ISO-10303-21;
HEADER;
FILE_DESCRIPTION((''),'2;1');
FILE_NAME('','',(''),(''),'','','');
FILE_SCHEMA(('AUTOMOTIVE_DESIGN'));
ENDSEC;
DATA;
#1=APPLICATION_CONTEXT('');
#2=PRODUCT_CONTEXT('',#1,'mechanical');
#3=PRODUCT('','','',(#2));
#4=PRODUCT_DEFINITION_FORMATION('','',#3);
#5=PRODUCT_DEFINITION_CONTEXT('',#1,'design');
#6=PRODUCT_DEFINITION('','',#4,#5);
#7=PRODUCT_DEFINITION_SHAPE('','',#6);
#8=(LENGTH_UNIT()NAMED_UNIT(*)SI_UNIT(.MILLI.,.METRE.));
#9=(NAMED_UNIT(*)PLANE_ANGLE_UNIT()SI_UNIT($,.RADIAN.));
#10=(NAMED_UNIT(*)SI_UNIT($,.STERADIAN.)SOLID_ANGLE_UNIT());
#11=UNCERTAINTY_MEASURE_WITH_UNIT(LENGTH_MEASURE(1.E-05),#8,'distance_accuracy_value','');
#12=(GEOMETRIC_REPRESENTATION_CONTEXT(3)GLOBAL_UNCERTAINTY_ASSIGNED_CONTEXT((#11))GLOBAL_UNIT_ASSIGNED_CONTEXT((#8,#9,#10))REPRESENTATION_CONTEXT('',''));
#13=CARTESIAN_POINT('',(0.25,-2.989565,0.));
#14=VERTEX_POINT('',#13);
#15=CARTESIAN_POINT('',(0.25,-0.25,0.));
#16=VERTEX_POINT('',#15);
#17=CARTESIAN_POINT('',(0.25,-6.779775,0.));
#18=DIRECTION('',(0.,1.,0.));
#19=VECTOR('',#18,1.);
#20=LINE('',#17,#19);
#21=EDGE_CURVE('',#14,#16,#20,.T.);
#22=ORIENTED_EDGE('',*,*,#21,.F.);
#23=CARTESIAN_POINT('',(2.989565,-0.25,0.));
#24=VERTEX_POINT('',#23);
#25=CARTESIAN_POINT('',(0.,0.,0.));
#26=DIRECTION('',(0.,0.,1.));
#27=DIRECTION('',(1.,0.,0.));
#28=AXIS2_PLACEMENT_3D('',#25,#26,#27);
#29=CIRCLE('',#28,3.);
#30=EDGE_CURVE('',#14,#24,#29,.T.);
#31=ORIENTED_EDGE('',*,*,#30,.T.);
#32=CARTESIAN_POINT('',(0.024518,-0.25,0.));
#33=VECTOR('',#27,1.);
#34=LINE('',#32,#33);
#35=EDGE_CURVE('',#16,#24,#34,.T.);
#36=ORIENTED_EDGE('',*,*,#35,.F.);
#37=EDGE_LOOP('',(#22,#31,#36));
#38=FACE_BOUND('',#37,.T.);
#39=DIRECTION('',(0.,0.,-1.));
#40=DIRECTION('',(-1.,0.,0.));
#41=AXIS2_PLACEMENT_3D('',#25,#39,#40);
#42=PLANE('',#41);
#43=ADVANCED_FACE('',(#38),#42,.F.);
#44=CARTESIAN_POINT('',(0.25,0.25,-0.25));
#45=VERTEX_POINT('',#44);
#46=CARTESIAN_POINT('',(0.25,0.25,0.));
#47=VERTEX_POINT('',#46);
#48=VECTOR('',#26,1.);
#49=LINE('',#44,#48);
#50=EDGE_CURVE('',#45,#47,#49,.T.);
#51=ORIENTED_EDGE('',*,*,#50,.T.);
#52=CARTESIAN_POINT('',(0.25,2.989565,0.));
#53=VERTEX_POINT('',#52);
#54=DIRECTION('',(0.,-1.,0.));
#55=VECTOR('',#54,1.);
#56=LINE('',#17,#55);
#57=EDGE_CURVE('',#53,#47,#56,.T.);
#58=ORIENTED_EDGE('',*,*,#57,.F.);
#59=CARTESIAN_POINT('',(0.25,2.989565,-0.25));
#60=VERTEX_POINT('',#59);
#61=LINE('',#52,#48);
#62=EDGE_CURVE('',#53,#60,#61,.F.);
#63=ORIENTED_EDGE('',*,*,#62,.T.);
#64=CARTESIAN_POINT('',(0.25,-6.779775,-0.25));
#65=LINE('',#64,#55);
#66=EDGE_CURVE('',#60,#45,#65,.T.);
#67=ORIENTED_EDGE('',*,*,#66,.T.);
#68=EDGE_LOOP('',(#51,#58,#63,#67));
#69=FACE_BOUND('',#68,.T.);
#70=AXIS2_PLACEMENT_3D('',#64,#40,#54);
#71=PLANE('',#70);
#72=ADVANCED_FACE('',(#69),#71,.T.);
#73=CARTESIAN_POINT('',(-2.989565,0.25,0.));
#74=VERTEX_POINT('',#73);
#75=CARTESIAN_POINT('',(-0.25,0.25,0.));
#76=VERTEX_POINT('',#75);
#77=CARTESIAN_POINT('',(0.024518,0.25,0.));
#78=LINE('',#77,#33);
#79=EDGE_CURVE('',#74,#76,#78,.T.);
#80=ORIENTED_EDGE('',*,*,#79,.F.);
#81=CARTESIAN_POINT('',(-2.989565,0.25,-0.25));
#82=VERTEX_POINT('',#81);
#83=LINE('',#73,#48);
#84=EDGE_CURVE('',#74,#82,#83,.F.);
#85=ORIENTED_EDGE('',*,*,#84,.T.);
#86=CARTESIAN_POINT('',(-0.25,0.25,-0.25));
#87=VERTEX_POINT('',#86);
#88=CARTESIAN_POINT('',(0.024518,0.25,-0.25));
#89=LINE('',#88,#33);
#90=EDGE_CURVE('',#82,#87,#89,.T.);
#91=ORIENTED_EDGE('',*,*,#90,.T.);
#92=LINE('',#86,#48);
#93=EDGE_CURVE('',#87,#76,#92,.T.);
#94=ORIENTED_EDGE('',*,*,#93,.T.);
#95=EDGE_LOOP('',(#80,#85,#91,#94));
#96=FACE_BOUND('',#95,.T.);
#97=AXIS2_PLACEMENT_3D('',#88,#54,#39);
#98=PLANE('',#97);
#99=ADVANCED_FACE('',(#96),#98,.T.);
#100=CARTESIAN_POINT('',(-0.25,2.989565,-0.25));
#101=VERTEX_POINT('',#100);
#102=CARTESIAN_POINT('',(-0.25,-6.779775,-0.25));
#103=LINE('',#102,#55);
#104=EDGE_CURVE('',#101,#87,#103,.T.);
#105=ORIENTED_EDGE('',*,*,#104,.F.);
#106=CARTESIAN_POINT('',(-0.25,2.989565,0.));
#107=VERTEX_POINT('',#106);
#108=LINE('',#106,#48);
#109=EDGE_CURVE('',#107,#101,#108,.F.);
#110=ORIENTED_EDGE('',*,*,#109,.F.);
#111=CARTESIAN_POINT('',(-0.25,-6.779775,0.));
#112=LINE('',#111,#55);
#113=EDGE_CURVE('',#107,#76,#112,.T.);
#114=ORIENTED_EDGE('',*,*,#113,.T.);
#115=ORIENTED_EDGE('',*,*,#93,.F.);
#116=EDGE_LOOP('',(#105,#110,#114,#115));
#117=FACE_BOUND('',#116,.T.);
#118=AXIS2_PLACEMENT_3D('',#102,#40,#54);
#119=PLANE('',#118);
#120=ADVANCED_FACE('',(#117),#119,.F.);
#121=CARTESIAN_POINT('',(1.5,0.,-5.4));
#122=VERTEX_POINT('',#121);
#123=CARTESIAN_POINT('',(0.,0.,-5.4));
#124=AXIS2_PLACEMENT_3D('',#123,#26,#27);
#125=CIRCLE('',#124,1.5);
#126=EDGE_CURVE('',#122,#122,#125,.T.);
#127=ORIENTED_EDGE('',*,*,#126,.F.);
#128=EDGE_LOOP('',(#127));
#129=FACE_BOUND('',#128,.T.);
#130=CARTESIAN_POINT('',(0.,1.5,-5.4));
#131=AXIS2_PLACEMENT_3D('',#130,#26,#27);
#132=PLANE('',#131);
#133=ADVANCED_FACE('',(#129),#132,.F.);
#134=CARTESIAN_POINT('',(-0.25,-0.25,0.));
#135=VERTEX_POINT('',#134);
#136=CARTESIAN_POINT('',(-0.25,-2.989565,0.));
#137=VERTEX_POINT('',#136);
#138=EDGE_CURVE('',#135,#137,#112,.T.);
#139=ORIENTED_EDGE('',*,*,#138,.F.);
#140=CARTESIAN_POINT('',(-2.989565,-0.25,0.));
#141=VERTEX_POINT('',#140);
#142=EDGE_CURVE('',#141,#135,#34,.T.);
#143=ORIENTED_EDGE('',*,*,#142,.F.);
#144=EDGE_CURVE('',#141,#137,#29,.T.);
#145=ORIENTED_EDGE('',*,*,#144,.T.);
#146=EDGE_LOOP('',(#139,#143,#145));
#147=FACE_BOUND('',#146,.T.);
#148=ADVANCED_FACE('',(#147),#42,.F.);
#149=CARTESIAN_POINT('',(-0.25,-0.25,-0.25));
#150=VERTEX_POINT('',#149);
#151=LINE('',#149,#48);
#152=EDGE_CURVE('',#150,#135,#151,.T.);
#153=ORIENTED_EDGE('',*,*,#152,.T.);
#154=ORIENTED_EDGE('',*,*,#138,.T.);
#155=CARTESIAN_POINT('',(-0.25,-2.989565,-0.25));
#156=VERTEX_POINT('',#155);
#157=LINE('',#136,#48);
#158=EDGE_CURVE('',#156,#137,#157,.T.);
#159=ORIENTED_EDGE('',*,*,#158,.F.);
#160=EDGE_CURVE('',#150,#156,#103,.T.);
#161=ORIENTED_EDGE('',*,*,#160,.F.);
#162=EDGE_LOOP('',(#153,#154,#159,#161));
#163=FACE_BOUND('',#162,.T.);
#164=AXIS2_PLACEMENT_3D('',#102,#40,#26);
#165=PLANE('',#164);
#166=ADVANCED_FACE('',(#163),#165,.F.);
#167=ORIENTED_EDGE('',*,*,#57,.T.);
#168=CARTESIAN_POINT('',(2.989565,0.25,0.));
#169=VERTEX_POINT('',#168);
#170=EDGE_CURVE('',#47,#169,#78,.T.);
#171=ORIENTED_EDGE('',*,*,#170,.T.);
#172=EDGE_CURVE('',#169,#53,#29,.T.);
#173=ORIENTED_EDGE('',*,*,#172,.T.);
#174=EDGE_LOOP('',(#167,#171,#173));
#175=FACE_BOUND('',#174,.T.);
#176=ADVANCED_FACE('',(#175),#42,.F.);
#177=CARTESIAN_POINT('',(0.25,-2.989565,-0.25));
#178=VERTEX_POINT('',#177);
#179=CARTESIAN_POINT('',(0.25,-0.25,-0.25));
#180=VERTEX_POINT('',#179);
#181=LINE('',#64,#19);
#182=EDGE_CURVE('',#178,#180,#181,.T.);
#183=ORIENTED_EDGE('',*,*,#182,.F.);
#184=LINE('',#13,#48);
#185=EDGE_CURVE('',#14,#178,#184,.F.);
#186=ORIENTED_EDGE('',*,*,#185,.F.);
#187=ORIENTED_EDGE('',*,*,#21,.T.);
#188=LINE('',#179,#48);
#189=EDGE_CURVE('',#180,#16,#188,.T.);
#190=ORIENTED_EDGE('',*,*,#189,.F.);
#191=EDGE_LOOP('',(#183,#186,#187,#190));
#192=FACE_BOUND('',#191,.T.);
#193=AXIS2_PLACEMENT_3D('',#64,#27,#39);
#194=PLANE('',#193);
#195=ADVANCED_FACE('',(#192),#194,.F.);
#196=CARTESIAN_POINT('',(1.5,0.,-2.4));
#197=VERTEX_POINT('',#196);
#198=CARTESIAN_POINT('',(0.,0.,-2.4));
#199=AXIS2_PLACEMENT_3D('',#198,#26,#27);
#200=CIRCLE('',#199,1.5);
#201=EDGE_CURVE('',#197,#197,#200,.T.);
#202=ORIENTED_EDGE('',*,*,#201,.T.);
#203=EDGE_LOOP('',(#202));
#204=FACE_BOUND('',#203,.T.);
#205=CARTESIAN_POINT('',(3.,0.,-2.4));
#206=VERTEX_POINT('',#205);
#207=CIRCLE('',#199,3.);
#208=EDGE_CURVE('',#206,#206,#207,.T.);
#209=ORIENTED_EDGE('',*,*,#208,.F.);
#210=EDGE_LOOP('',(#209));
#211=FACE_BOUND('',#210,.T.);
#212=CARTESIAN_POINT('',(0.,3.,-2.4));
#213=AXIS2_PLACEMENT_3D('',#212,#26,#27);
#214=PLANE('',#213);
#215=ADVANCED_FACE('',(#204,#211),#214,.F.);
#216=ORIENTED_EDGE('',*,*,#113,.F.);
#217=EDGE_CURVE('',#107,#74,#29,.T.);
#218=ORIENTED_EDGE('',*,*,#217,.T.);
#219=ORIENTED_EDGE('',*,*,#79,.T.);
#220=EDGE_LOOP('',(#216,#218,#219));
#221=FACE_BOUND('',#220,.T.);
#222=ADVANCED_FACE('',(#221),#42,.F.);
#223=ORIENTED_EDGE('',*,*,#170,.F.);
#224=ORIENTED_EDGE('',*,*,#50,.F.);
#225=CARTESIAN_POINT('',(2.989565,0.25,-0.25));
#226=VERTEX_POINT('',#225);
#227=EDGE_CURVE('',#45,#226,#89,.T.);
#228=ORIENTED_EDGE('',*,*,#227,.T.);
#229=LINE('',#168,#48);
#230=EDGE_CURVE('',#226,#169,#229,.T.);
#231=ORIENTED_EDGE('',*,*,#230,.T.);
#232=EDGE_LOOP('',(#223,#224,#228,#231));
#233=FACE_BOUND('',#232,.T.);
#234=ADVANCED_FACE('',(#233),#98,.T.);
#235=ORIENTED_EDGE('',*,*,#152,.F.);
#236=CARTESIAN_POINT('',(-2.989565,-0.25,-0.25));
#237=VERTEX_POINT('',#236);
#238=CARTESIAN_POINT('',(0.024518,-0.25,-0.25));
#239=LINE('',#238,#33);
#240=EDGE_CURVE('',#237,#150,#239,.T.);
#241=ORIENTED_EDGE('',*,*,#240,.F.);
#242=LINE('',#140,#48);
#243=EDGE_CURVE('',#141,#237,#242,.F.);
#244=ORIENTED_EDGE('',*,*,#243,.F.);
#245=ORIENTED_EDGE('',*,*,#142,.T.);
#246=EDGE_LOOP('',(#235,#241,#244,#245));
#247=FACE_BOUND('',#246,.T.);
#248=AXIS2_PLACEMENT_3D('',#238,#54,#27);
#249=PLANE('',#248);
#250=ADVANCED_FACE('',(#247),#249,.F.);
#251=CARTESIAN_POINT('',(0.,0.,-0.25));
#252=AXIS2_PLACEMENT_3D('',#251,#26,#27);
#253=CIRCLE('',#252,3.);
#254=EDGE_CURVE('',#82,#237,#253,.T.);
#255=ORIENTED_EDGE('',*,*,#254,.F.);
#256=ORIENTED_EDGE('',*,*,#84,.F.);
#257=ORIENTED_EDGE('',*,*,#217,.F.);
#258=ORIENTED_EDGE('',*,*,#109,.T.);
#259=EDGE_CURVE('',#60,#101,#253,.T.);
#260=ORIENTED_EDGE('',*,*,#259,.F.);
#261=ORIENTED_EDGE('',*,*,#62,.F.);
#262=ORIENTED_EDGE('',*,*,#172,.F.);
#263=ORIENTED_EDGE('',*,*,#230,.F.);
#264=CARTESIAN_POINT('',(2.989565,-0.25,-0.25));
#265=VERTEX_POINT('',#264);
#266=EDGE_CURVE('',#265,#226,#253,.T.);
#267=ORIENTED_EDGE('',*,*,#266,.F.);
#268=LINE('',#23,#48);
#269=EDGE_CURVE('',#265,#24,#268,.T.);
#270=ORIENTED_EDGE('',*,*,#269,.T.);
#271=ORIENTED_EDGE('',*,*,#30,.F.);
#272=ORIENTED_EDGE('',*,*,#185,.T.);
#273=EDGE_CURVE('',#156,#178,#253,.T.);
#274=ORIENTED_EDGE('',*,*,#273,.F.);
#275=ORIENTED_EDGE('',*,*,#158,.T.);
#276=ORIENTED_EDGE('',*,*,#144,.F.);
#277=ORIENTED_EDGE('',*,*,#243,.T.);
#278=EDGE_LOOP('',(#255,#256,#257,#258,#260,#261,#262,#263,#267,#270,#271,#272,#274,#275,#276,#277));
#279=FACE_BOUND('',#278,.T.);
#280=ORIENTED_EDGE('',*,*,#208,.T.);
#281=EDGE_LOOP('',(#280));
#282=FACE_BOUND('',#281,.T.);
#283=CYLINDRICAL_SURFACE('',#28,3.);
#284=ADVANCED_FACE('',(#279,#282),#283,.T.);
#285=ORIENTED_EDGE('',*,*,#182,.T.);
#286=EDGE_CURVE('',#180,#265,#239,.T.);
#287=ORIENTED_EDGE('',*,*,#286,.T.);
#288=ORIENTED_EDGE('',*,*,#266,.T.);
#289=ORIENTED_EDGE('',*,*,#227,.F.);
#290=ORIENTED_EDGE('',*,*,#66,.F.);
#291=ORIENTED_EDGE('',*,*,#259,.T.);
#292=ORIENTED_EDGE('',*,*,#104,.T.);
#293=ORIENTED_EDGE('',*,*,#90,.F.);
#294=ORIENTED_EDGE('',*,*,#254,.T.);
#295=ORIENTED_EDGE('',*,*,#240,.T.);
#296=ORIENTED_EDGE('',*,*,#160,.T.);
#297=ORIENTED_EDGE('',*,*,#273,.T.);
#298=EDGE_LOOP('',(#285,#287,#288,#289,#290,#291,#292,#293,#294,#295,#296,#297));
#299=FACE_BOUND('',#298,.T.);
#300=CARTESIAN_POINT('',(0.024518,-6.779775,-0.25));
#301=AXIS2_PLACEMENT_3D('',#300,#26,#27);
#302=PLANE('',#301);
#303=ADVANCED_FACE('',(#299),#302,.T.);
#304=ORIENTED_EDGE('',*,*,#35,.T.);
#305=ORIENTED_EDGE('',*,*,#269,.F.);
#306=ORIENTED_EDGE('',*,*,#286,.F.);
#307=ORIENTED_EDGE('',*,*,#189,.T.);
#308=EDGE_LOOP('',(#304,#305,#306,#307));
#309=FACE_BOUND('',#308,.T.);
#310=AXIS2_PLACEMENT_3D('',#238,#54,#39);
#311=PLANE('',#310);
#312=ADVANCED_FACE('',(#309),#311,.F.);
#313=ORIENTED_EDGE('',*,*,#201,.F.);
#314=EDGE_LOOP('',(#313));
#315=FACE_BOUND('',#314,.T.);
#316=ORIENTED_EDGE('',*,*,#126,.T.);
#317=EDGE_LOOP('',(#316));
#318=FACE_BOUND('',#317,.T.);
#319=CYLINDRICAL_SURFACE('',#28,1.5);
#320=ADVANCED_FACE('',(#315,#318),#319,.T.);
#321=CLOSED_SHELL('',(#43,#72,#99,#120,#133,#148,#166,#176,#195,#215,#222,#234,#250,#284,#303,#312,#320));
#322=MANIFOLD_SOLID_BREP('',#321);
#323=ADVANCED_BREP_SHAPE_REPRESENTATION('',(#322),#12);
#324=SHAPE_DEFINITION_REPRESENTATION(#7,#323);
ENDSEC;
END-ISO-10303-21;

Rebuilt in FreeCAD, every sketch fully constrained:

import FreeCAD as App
import Part
import Sketcher
Q = App.Units.Quantity


def add_polygon(sketch, points):
    """Adds a closed chain of lines whose ends are joined by coincident constraints."""
    first, n = sketch.GeometryCount, len(points)
    for a, b in zip(points, points[1:] + points[:1]):
        sketch.addGeometry(Part.LineSegment(App.Vector(*a, 0), App.Vector(*b, 0)), False)
    for i in range(n):
        sketch.addConstraint(Sketcher.Constraint("Coincident", first + i, 2, first + (i + 1) % n, 1))

doc = App.newDocument("Part")
body = doc.addObject("PartDesign::Body", "Body")

# Sketch on YZ plane
sketch1 = doc.addObject("Sketcher::SketchObject", "Sketch")
body.addObject(sketch1)
sketch1.AttachmentSupport = (doc.YZ_Plane, [""])
sketch1.MapMode = "FlatFace"
add_polygon(sketch1, [(3, 0), (0, 0), (0, -5.4), (1.5, -5.4), (1.5, -2.4), (3, -2.4)])  # lines 0-5
sketch1.addConstraint(Sketcher.Constraint("Horizontal", 0))
sketch1.addConstraint(Sketcher.Constraint("Vertical", 1))
sketch1.addConstraint(Sketcher.Constraint("Horizontal", 2))
sketch1.addConstraint(Sketcher.Constraint("Vertical", 3))
sketch1.addConstraint(Sketcher.Constraint("Horizontal", 4))
sketch1.addConstraint(Sketcher.Constraint("Vertical", 5))
sketch1.addConstraint(Sketcher.Constraint("Coincident", 0, 2, -1, 1))
sketch1.addConstraint(Sketcher.Constraint("Equal", 2, 4))
sketch1.addConstraint(Sketcher.Constraint("Equal", 0, 3))
sketch1.addConstraint(Sketcher.Constraint("DistanceX", 0, 2, 0, 1, Q("3 mm")))
sketch1.addConstraint(Sketcher.Constraint("DistanceY", 1, 2, 1, 1, Q("5.4 mm")))
revolution = doc.addObject("PartDesign::Revolution", "Revolution")
body.addObject(revolution)
revolution.Profile = sketch1
revolution.ReferenceAxis = (sketch1, ["V_Axis"])
revolution.Angle = 360

# Sketch on XY plane
sketch2 = doc.addObject("Sketcher::SketchObject", "Sketch001")
body.addObject(sketch2)
sketch2.AttachmentSupport = (doc.XY_Plane, [""])
sketch2.MapMode = "FlatFace"
add_polygon(sketch2, [(-0.2, 3), (-0.2, 0.2), (-3, 0.2), (-3.4, 0), (-3, -0.2), (-0.2, -0.2), (-0.2, -3.5), (0.2, -3.5), (0.2, -0.2), (3.1, -0.2), (4, -0.3), (4, 0.2), (0.2, 0.2), (0.2, 3), (0, 3.4)])  # lines 0-14
sketch2.addConstraint(Sketcher.Constraint("Vertical", 0))
sketch2.addConstraint(Sketcher.Constraint("Horizontal", 1))
sketch2.addConstraint(Sketcher.Constraint("Horizontal", 4))
sketch2.addConstraint(Sketcher.Constraint("Vertical", 5))
sketch2.addConstraint(Sketcher.Constraint("Horizontal", 6))
sketch2.addConstraint(Sketcher.Constraint("Vertical", 7))
sketch2.addConstraint(Sketcher.Constraint("Horizontal", 8))
sketch2.addConstraint(Sketcher.Constraint("Vertical", 10))
sketch2.addConstraint(Sketcher.Constraint("Horizontal", 11))
sketch2.addConstraint(Sketcher.Constraint("Vertical", 12))
sketch2.addConstraint(Sketcher.Constraint("Symmetric", 0, 2, 7, 2, -1, 1))
sketch2.addConstraint(Sketcher.Constraint("Symmetric", 4, 2, 11, 2, -1, 1))
sketch2.addConstraint(Sketcher.Constraint("Symmetric", 4, 2, 7, 2, -2))
sketch2.addConstraint(Sketcher.Constraint("PointOnObject", 2, 2, -1))
sketch2.addConstraint(Sketcher.Constraint("PointOnObject", 13, 2, -2))
sketch2.addConstraint(Sketcher.Constraint("Perpendicular", 2, 13))
sketch2.addConstraint(Sketcher.Constraint("Perpendicular", 3, 14))
sketch2.addConstraint(Sketcher.Constraint("Horizontal", 12, 2, 14, 2))
sketch2.addConstraint(Sketcher.Constraint("Equal", 4, 0))
sketch2.addConstraint(Sketcher.Constraint("Equal", 3, 13))
sketch2.addConstraint(Sketcher.Constraint("DistanceX", 6, 1, 6, 2, Q("0.5 mm")))
sketch2.addConstraint(Sketcher.Constraint("DistanceX", 1, 2, -1, 1, Q("3 mm")))
sketch2.addConstraint(Sketcher.Constraint("DistanceY", 5, 2, 5, 1, Q("3.22415 mm")))
sketch2.addConstraint(Sketcher.Constraint("DistanceY", 10, 1, 10, 2, Q("0.569251 mm")))
sketch2.addConstraint(Sketcher.Constraint("DistanceX", 2, 2, -1, 1, Q("3.446499 mm")))
sketch2.addConstraint(Sketcher.Constraint("DistanceX", 8, 1, 8, 2, Q("2.826862 mm")))
sketch2.addConstraint(Sketcher.Constraint("DistanceX", 11, 2, 11, 1, Q("3.756902 mm")))
pocket1 = doc.addObject("PartDesign::Pocket", "Pocket")
body.addObject(pocket1)
pocket1.Profile = sketch2
pocket1.Length = 0.25

doc.recompute()
